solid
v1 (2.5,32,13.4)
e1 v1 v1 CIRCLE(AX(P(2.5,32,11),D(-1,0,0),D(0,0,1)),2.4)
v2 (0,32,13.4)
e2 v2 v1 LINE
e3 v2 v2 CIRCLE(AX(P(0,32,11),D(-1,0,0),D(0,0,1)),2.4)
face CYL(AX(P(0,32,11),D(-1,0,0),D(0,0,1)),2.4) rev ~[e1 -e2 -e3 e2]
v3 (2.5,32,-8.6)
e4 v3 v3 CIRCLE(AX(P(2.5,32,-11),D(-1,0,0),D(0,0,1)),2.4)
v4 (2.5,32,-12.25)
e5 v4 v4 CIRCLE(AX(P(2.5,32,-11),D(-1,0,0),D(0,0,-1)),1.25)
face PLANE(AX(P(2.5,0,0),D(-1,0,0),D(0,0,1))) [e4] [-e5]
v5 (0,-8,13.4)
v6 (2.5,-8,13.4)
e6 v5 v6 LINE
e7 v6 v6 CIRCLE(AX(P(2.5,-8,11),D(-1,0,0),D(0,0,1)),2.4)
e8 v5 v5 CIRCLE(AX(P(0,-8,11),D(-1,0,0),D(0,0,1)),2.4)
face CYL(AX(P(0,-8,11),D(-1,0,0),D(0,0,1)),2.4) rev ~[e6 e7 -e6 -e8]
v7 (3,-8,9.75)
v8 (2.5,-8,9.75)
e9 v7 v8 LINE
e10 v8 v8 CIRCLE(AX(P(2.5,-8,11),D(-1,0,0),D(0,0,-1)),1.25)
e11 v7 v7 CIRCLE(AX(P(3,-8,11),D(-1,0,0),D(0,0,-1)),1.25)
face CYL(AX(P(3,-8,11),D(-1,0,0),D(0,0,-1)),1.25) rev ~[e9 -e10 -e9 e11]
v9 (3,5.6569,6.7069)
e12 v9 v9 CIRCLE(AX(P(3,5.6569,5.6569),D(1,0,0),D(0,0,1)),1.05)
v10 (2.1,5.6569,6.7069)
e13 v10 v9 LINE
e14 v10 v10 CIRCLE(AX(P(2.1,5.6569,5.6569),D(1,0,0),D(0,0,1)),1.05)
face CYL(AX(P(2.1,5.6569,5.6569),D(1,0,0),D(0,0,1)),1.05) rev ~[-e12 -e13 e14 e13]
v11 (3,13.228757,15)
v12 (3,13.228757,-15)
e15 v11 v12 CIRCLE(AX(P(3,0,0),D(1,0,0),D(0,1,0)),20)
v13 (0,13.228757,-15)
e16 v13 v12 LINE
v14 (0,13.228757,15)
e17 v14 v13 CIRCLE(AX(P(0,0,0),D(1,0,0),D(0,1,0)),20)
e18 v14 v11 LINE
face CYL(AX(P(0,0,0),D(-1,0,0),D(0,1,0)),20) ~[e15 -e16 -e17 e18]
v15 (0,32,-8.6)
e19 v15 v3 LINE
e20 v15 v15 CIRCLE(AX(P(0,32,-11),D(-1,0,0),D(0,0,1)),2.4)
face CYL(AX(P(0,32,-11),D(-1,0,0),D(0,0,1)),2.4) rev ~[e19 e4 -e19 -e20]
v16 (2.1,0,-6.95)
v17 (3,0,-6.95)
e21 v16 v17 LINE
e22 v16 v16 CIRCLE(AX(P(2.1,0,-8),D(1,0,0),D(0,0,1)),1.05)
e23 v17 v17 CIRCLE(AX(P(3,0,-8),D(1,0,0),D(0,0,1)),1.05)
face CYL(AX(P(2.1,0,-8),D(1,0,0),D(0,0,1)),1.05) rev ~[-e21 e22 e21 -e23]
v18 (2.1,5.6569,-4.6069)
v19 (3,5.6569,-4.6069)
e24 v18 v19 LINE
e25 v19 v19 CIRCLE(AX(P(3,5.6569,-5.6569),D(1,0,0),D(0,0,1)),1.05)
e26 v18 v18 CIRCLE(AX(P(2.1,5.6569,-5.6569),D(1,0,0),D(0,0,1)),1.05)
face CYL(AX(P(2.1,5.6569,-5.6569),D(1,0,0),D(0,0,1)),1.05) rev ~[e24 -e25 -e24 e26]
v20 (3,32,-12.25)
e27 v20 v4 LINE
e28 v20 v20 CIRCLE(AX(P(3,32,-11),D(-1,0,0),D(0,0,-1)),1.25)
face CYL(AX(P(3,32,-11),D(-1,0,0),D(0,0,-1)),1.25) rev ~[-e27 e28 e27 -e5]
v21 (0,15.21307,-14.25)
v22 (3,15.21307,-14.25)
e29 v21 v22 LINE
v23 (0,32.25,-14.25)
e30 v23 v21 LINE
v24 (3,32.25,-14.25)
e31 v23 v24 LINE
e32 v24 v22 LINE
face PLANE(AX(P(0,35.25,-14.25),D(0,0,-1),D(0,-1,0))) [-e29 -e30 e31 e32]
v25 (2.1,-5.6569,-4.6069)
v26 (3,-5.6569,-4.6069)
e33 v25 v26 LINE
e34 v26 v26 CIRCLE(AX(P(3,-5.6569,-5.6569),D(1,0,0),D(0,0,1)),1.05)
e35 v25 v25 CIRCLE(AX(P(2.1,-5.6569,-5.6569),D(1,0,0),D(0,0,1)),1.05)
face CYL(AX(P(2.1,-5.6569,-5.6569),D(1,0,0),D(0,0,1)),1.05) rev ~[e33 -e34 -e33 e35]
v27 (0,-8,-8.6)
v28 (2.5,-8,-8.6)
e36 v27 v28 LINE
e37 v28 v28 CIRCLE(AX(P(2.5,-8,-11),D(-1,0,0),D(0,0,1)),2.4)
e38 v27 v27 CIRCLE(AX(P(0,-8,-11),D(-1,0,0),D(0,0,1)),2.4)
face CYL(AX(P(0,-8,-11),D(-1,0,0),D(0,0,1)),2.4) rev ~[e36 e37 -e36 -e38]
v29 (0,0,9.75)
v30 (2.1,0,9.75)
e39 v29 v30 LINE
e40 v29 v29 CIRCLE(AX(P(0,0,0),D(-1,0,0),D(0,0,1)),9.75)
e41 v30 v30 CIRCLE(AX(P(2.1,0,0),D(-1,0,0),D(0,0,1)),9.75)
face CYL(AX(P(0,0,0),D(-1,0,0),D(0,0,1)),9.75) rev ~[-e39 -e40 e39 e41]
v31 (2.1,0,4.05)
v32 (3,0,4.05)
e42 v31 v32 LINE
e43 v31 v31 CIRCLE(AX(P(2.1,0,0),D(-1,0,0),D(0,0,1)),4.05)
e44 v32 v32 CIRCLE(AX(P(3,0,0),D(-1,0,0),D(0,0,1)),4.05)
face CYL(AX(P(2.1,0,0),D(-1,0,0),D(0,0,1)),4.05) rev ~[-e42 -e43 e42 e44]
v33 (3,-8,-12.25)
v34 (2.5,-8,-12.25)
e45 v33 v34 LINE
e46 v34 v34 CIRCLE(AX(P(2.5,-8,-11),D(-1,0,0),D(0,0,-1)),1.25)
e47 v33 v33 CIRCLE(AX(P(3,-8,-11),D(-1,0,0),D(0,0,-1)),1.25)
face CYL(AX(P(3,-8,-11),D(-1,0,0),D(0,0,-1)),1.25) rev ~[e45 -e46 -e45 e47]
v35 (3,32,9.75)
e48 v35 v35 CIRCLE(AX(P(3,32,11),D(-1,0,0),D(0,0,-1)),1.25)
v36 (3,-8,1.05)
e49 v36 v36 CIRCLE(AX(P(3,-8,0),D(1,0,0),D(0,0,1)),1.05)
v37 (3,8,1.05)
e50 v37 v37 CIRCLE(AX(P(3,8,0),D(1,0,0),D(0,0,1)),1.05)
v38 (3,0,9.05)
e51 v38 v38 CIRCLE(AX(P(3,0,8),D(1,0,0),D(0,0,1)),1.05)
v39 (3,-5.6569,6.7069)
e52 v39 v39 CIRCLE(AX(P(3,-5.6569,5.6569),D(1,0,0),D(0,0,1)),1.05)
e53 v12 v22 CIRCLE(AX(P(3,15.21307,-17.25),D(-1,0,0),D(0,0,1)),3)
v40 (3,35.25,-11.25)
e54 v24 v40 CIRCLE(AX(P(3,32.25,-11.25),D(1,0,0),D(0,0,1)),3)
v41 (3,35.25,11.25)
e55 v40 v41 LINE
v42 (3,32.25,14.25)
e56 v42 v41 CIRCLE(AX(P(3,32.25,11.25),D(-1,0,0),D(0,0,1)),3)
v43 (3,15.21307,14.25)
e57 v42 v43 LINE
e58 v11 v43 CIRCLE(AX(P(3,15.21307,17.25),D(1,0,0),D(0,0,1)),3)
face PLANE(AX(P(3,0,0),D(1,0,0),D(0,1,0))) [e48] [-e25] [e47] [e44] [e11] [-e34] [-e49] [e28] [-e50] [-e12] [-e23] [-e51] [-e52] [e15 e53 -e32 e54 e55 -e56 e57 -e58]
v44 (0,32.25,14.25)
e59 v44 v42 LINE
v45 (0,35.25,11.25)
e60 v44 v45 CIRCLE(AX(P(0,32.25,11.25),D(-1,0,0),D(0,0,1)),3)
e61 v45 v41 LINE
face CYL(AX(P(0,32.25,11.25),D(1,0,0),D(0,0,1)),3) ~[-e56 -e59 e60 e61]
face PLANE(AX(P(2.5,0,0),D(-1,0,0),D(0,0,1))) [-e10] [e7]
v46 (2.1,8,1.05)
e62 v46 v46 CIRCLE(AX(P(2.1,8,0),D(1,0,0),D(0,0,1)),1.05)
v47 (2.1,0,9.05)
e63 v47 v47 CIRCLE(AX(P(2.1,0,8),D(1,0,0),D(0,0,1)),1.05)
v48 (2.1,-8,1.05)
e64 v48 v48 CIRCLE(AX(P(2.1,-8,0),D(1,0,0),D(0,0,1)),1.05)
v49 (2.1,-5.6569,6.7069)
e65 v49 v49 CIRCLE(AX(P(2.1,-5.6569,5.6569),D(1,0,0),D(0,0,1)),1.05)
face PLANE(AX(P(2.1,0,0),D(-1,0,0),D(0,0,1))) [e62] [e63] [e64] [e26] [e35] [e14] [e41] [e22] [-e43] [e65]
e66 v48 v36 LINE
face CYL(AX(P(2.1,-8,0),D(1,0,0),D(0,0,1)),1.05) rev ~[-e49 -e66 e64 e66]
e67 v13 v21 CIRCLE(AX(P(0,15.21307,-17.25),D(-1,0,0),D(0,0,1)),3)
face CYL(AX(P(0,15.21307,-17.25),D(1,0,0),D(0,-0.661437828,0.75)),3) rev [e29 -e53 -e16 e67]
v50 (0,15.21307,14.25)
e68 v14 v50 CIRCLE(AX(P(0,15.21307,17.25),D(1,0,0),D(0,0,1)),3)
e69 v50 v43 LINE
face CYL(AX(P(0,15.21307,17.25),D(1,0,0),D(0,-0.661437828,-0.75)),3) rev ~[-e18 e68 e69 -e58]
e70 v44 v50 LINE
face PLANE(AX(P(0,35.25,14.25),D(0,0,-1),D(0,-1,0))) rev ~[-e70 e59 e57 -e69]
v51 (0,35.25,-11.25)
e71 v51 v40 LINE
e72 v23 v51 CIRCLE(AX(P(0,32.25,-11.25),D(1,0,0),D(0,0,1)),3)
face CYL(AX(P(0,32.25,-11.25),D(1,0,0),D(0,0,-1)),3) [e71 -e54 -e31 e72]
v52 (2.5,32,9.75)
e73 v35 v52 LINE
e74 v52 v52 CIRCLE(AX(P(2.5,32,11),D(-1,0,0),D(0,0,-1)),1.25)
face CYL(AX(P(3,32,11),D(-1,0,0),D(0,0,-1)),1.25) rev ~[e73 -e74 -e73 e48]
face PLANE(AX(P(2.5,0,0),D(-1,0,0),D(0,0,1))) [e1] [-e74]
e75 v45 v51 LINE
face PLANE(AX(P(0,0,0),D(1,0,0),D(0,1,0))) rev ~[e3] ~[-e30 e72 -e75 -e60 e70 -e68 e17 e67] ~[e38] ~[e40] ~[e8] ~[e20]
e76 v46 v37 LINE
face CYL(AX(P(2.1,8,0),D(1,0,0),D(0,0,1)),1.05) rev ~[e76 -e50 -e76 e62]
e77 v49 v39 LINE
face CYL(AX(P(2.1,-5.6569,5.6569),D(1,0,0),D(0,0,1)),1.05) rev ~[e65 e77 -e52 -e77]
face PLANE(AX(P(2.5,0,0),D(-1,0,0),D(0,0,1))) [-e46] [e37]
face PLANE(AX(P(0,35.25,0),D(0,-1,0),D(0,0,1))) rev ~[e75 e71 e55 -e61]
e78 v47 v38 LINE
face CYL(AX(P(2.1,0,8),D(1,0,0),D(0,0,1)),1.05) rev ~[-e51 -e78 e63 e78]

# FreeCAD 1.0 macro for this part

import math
import FreeCAD as App
import Part
import Sketcher


def edges_at(feature, points):
    """Names of the edges that pass closest to the given points."""
    edges = feature.Shape.Edges
    near = lambda p: min(range(len(edges)), key=lambda i: edges[i].distToShape(Part.Vertex(*p))[0])
    return sorted({f"Edge{near(p) + 1}" for p in points})

doc = App.newDocument("Part")
params = doc.addObject("Spreadsheet::Sheet", "Params")
for row, (alias, value) in enumerate([
    ("sketch1_radius", "20 mm"),
    ("pad1_length", "3 mm"),
    ("sketch2_diameter", "19.5 mm"),
    ("pocket1_length", "2.1 mm"),
    ("sketch3_diameter", "2.1 mm"),
    ("hole_diameter", "2.1 mm"),
    ("sketch4_diameter", "2.5 mm"),
    ("hole2_diameter", "2.5 mm"),
    ("sketch5_diameter", "4.8 mm"),
    ("sketch5_diameter2", "2.5 mm"),
    ("pocket2_length", "2.5 mm"),
    ("fillet_radius", "3 mm"),
    ("sketch6_diameter", "8.1 mm"),
    ("pocket3_length", "10 mm"),
], start=1):
    params.set(f"A{row}", alias)
    params.set(f"B{row}", "=" + value)
    params.setAlias(f"B{row}", alias)

body = doc.addObject("PartDesign::Body", "Body")

sketch1 = body.newObject("Sketcher::SketchObject", "Sketch")
sketch1.AttachmentSupport = (doc.getObject("YZ_Plane"), [""])
sketch1.MapMode = "FlatFace"
sketch1.addGeometry([
    Part.ArcOfCircle(Part.Circle(App.Vector(0, 0, 0), App.Vector(0, 0, 1), 20), math.radians(45.438688), math.radians(314.561312)),
    Part.LineSegment(App.Vector(14.033442, -14.25, 0), App.Vector(35.25, -14.25, 0)),
    Part.LineSegment(App.Vector(35.25, -14.25, 0), App.Vector(35.25, 14.25, 0)),
    Part.LineSegment(App.Vector(35.25, 14.25, 0), App.Vector(14.033442, 14.25, 0)),
], False)
sketch1.addConstraint([
    Sketcher.Constraint("Coincident", 0, 2, 1, 1),
    Sketcher.Constraint("Coincident", 1, 2, 2, 1),
    Sketcher.Constraint("Coincident", 2, 2, 3, 1),
    Sketcher.Constraint("Coincident", 3, 2, 0, 1),
    Sketcher.Constraint("Horizontal", 1),
    Sketcher.Constraint("Vertical", 2),
    Sketcher.Constraint("Horizontal", 3),
    Sketcher.Constraint("Coincident", 0, 3, -1, 1),
    Sketcher.Constraint("Vertical", 0, 2, 3, 2),
    Sketcher.Constraint("Radius", 0, 20.0),
    Sketcher.Constraint("DistanceY", 0, 2, -1, 1, 14.25),
    Sketcher.Constraint("DistanceX", -1, 1, 1, 2, 35.25),
])
sketch1.setExpression("Constraints[9]", "Params.sketch1_radius")
pad1 = body.newObject("PartDesign::Pad", "Pad")
pad1.Profile = sketch1
pad1.setExpression("Length", "Params.pad1_length")

sketch2 = body.newObject("Sketcher::SketchObject", "Sketch001")
sketch2.AttachmentSupport = (doc.getObject("YZ_Plane"), [""])
sketch2.MapMode = "FlatFace"
sketch2.addGeometry(Part.Circle(App.Vector(0, 0, 0), App.Vector(0, 0, 1), 9.75), False)
sketch2.addConstraint([
    Sketcher.Constraint("Coincident", 0, 3, -1, 1),
    Sketcher.Constraint("Diameter", 0, 19.5),
])
sketch2.setExpression("Constraints[1]", "Params.sketch2_diameter")
pocket1 = body.newObject("PartDesign::Pocket", "Pocket")
pocket1.Profile = sketch2
pocket1.setExpression("Length", "Params.pocket1_length")
pocket1.Reversed = True

sketch3 = body.newObject("Sketcher::SketchObject", "Sketch002")
sketch3.AttachmentSupport = (doc.getObject("YZ_Plane"), [""])
sketch3.MapMode = "FlatFace"
sketch3.AttachmentOffset = App.Placement(App.Vector(0, 0, 2.1), App.Rotation())
sketch3.addGeometry([
    Part.Circle(App.Vector(8, 0, 0), App.Vector(0, 0, 1), 1.05),
    Part.Circle(App.Vector(5.6569, -5.6569, 0), App.Vector(0, 0, 1), 1.05),
    Part.Circle(App.Vector(0, -8, 0), App.Vector(0, 0, 1), 1.05),
    Part.Circle(App.Vector(-5.6569, -5.6569, 0), App.Vector(0, 0, 1), 1.05),
    Part.Circle(App.Vector(-8, 0, 0), App.Vector(0, 0, 1), 1.05),
    Part.Circle(App.Vector(-5.6569, 5.6569, 0), App.Vector(0, 0, 1), 1.05),
    Part.Circle(App.Vector(0, 8, 0), App.Vector(0, 0, 1), 1.05),
    Part.Circle(App.Vector(5.6569, 5.6569, 0), App.Vector(0, 0, 1), 1.05),
], False)
sketch3.addConstraint([
    Sketcher.Constraint("Equal", 0, 1),
    Sketcher.Constraint("Equal", 1, 2),
    Sketcher.Constraint("Equal", 2, 3),
    Sketcher.Constraint("Equal", 3, 4),
    Sketcher.Constraint("Equal", 4, 5),
    Sketcher.Constraint("Equal", 5, 6),
    Sketcher.Constraint("Equal", 6, 7),
    Sketcher.Constraint("Symmetric", 0, 3, 4, 3, -1, 1),
    Sketcher.Constraint("Symmetric", 1, 3, 5, 3, -1, 1),
    Sketcher.Constraint("Symmetric", 2, 3, 6, 3, -1, 1),
    Sketcher.Constraint("Symmetric", 3, 3, 7, 3, -1, 1),
    Sketcher.Constraint("Symmetric", 1, 3, 3, 3, -2),
    Sketcher.Constraint("PointOnObject", 0, 3, -1),
    Sketcher.Constraint("PointOnObject", 2, 3, -2),
    Sketcher.Constraint("Diameter", 0, 2.1),
    Sketcher.Constraint("DistanceX", -1, 1, 0, 3, 8.0),
    Sketcher.Constraint("DistanceY", 2, 3, -1, 1, 8.0),
    Sketcher.Constraint("DistanceX", -1, 1, 1, 3, 5.657),
    Sketcher.Constraint("DistanceY", 1, 3, -1, 1, 5.657),
])
sketch3.setExpression("Constraints[14]", "Params.sketch3_diameter")
doc.recompute()
hole = body.newObject("PartDesign::Hole", "Hole")
hole.Profile = sketch3
hole.ThreadType = "None"
hole.setExpression("Diameter", "Params.hole_diameter")
hole.DepthType = "ThroughAll"
hole.Reversed = True

sketch4 = body.newObject("Sketcher::SketchObject", "Sketch003")
sketch4.AttachmentSupport = (doc.getObject("YZ_Plane"), [""])
sketch4.MapMode = "FlatFace"
sketch4.AttachmentOffset = App.Placement(App.Vector(0, 0, 3), App.Rotation())
sketch4.addGeometry([
    Part.Circle(App.Vector(-8, 11, 0), App.Vector(0, 0, 1), 1.25),
    Part.Circle(App.Vector(-8, -11, 0), App.Vector(0, 0, 1), 1.25),
    Part.Circle(App.Vector(32, -11, 0), App.Vector(0, 0, 1), 1.25),
    Part.Circle(App.Vector(32, 11, 0), App.Vector(0, 0, 1), 1.25),
], False)
sketch4.addConstraint([
    Sketcher.Constraint("Equal", 0, 1),
    Sketcher.Constraint("Equal", 1, 2),
    Sketcher.Constraint("Equal", 2, 3),
    Sketcher.Constraint("Symmetric", 0, 3, 1, 3, -1),
    Sketcher.Constraint("Symmetric", 2, 3, 3, 3, -1),
    Sketcher.Constraint("Horizontal", 1, 3, 2, 3),
    Sketcher.Constraint("Diameter", 0, 2.5),
    Sketcher.Constraint("DistanceX", 0, 3, -1, 1, 8.0),
    Sketcher.Constraint("DistanceY", -1, 1, 0, 3, 11.0),
    Sketcher.Constraint("DistanceX", -1, 1, 2, 3, 32.0),
])
sketch4.setExpression("Constraints[6]", "Params.sketch4_diameter")
doc.recompute()
hole2 = body.newObject("PartDesign::Hole", "Hole001")
hole2.Profile = sketch4
hole2.ThreadType = "None"
hole2.setExpression("Diameter", "Params.hole2_diameter")
hole2.DepthType = "ThroughAll"

sketch5 = body.newObject("Sketcher::SketchObject", "Sketch004")
sketch5.AttachmentSupport = (doc.getObject("YZ_Plane"), [""])
sketch5.MapMode = "FlatFace"
sketch5.addGeometry([
    Part.Circle(App.Vector(-8, -11, 0), App.Vector(0, 0, 1), 2.4),
    Part.Circle(App.Vector(-8, -11, 0), App.Vector(0, 0, 1), 1.25),
    Part.Circle(App.Vector(-8, 11, 0), App.Vector(0, 0, 1), 2.4),
    Part.Circle(App.Vector(32, -11, 0), App.Vector(0, 0, 1), 2.4),
    Part.Circle(App.Vector(32, 11, 0), App.Vector(0, 0, 1), 2.4),
], False)
sketch5.addConstraint([
    Sketcher.Constraint("Coincident", 1, 3, 0, 3),
    Sketcher.Constraint("Equal", 0, 2),
    Sketcher.Constraint("Equal", 2, 3),
    Sketcher.Constraint("Equal", 3, 4),
    Sketcher.Constraint("Symmetric", 0, 3, 2, 3, -1),
    Sketcher.Constraint("Symmetric", 3, 3, 4, 3, -1),
    Sketcher.Constraint("Horizontal", 1, 3, 3, 3),
    Sketcher.Constraint("Diameter", 0, 4.8),
    Sketcher.Constraint("Diameter", 1, 2.5),
    Sketcher.Constraint("DistanceX", 0, 3, -1, 1, 8.0),
    Sketcher.Constraint("DistanceY", 0, 3, -1, 1, 11.0),
    Sketcher.Constraint("DistanceX", -1, 1, 3, 3, 32.0),
])
sketch5.setExpression("Constraints[7]", "Params.sketch5_diameter")
sketch5.setExpression("Constraints[8]", "Params.sketch5_diameter2")
pocket2 = body.newObject("PartDesign::Pocket", "Pocket001")
pocket2.Profile = sketch5
pocket2.setExpression("Length", "Params.pocket2_length")
pocket2.Reversed = True
doc.recompute()

fillet = body.newObject("PartDesign::Fillet", "Fillet")
fillet.Base = (pocket2, edges_at(pocket2, [
    (1.5, 35.25, -14.25),
    (1.5, 35.25, 14.25),
    (1.5, 14.033, -14.25),
    (1.5, 14.033, 14.25),
]))
fillet.setExpression("Radius", "Params.fillet_radius")

sketch6 = body.newObject("Sketcher::SketchObject", "Sketch005")
sketch6.AttachmentSupport = (doc.getObject("YZ_Plane"), [""])
sketch6.MapMode = "FlatFace"
sketch6.AttachmentOffset = App.Placement(App.Vector(0, 0, 2.1), App.Rotation())
sketch6.addGeometry(Part.Circle(App.Vector(0, 0, 0), App.Vector(0, 0, 1), 4.05), False)
sketch6.addConstraint([
    Sketcher.Constraint("Coincident", 0, 3, -1, 1),
    Sketcher.Constraint("Diameter", 0, 8.1),
])
sketch6.setExpression("Constraints[1]", "Params.sketch6_diameter")
pocket3 = body.newObject("PartDesign::Pocket", "Pocket002")
pocket3.Profile = sketch6
pocket3.setExpression("Length", "Params.pocket3_length")
pocket3.Reversed = True

doc.recompute()
